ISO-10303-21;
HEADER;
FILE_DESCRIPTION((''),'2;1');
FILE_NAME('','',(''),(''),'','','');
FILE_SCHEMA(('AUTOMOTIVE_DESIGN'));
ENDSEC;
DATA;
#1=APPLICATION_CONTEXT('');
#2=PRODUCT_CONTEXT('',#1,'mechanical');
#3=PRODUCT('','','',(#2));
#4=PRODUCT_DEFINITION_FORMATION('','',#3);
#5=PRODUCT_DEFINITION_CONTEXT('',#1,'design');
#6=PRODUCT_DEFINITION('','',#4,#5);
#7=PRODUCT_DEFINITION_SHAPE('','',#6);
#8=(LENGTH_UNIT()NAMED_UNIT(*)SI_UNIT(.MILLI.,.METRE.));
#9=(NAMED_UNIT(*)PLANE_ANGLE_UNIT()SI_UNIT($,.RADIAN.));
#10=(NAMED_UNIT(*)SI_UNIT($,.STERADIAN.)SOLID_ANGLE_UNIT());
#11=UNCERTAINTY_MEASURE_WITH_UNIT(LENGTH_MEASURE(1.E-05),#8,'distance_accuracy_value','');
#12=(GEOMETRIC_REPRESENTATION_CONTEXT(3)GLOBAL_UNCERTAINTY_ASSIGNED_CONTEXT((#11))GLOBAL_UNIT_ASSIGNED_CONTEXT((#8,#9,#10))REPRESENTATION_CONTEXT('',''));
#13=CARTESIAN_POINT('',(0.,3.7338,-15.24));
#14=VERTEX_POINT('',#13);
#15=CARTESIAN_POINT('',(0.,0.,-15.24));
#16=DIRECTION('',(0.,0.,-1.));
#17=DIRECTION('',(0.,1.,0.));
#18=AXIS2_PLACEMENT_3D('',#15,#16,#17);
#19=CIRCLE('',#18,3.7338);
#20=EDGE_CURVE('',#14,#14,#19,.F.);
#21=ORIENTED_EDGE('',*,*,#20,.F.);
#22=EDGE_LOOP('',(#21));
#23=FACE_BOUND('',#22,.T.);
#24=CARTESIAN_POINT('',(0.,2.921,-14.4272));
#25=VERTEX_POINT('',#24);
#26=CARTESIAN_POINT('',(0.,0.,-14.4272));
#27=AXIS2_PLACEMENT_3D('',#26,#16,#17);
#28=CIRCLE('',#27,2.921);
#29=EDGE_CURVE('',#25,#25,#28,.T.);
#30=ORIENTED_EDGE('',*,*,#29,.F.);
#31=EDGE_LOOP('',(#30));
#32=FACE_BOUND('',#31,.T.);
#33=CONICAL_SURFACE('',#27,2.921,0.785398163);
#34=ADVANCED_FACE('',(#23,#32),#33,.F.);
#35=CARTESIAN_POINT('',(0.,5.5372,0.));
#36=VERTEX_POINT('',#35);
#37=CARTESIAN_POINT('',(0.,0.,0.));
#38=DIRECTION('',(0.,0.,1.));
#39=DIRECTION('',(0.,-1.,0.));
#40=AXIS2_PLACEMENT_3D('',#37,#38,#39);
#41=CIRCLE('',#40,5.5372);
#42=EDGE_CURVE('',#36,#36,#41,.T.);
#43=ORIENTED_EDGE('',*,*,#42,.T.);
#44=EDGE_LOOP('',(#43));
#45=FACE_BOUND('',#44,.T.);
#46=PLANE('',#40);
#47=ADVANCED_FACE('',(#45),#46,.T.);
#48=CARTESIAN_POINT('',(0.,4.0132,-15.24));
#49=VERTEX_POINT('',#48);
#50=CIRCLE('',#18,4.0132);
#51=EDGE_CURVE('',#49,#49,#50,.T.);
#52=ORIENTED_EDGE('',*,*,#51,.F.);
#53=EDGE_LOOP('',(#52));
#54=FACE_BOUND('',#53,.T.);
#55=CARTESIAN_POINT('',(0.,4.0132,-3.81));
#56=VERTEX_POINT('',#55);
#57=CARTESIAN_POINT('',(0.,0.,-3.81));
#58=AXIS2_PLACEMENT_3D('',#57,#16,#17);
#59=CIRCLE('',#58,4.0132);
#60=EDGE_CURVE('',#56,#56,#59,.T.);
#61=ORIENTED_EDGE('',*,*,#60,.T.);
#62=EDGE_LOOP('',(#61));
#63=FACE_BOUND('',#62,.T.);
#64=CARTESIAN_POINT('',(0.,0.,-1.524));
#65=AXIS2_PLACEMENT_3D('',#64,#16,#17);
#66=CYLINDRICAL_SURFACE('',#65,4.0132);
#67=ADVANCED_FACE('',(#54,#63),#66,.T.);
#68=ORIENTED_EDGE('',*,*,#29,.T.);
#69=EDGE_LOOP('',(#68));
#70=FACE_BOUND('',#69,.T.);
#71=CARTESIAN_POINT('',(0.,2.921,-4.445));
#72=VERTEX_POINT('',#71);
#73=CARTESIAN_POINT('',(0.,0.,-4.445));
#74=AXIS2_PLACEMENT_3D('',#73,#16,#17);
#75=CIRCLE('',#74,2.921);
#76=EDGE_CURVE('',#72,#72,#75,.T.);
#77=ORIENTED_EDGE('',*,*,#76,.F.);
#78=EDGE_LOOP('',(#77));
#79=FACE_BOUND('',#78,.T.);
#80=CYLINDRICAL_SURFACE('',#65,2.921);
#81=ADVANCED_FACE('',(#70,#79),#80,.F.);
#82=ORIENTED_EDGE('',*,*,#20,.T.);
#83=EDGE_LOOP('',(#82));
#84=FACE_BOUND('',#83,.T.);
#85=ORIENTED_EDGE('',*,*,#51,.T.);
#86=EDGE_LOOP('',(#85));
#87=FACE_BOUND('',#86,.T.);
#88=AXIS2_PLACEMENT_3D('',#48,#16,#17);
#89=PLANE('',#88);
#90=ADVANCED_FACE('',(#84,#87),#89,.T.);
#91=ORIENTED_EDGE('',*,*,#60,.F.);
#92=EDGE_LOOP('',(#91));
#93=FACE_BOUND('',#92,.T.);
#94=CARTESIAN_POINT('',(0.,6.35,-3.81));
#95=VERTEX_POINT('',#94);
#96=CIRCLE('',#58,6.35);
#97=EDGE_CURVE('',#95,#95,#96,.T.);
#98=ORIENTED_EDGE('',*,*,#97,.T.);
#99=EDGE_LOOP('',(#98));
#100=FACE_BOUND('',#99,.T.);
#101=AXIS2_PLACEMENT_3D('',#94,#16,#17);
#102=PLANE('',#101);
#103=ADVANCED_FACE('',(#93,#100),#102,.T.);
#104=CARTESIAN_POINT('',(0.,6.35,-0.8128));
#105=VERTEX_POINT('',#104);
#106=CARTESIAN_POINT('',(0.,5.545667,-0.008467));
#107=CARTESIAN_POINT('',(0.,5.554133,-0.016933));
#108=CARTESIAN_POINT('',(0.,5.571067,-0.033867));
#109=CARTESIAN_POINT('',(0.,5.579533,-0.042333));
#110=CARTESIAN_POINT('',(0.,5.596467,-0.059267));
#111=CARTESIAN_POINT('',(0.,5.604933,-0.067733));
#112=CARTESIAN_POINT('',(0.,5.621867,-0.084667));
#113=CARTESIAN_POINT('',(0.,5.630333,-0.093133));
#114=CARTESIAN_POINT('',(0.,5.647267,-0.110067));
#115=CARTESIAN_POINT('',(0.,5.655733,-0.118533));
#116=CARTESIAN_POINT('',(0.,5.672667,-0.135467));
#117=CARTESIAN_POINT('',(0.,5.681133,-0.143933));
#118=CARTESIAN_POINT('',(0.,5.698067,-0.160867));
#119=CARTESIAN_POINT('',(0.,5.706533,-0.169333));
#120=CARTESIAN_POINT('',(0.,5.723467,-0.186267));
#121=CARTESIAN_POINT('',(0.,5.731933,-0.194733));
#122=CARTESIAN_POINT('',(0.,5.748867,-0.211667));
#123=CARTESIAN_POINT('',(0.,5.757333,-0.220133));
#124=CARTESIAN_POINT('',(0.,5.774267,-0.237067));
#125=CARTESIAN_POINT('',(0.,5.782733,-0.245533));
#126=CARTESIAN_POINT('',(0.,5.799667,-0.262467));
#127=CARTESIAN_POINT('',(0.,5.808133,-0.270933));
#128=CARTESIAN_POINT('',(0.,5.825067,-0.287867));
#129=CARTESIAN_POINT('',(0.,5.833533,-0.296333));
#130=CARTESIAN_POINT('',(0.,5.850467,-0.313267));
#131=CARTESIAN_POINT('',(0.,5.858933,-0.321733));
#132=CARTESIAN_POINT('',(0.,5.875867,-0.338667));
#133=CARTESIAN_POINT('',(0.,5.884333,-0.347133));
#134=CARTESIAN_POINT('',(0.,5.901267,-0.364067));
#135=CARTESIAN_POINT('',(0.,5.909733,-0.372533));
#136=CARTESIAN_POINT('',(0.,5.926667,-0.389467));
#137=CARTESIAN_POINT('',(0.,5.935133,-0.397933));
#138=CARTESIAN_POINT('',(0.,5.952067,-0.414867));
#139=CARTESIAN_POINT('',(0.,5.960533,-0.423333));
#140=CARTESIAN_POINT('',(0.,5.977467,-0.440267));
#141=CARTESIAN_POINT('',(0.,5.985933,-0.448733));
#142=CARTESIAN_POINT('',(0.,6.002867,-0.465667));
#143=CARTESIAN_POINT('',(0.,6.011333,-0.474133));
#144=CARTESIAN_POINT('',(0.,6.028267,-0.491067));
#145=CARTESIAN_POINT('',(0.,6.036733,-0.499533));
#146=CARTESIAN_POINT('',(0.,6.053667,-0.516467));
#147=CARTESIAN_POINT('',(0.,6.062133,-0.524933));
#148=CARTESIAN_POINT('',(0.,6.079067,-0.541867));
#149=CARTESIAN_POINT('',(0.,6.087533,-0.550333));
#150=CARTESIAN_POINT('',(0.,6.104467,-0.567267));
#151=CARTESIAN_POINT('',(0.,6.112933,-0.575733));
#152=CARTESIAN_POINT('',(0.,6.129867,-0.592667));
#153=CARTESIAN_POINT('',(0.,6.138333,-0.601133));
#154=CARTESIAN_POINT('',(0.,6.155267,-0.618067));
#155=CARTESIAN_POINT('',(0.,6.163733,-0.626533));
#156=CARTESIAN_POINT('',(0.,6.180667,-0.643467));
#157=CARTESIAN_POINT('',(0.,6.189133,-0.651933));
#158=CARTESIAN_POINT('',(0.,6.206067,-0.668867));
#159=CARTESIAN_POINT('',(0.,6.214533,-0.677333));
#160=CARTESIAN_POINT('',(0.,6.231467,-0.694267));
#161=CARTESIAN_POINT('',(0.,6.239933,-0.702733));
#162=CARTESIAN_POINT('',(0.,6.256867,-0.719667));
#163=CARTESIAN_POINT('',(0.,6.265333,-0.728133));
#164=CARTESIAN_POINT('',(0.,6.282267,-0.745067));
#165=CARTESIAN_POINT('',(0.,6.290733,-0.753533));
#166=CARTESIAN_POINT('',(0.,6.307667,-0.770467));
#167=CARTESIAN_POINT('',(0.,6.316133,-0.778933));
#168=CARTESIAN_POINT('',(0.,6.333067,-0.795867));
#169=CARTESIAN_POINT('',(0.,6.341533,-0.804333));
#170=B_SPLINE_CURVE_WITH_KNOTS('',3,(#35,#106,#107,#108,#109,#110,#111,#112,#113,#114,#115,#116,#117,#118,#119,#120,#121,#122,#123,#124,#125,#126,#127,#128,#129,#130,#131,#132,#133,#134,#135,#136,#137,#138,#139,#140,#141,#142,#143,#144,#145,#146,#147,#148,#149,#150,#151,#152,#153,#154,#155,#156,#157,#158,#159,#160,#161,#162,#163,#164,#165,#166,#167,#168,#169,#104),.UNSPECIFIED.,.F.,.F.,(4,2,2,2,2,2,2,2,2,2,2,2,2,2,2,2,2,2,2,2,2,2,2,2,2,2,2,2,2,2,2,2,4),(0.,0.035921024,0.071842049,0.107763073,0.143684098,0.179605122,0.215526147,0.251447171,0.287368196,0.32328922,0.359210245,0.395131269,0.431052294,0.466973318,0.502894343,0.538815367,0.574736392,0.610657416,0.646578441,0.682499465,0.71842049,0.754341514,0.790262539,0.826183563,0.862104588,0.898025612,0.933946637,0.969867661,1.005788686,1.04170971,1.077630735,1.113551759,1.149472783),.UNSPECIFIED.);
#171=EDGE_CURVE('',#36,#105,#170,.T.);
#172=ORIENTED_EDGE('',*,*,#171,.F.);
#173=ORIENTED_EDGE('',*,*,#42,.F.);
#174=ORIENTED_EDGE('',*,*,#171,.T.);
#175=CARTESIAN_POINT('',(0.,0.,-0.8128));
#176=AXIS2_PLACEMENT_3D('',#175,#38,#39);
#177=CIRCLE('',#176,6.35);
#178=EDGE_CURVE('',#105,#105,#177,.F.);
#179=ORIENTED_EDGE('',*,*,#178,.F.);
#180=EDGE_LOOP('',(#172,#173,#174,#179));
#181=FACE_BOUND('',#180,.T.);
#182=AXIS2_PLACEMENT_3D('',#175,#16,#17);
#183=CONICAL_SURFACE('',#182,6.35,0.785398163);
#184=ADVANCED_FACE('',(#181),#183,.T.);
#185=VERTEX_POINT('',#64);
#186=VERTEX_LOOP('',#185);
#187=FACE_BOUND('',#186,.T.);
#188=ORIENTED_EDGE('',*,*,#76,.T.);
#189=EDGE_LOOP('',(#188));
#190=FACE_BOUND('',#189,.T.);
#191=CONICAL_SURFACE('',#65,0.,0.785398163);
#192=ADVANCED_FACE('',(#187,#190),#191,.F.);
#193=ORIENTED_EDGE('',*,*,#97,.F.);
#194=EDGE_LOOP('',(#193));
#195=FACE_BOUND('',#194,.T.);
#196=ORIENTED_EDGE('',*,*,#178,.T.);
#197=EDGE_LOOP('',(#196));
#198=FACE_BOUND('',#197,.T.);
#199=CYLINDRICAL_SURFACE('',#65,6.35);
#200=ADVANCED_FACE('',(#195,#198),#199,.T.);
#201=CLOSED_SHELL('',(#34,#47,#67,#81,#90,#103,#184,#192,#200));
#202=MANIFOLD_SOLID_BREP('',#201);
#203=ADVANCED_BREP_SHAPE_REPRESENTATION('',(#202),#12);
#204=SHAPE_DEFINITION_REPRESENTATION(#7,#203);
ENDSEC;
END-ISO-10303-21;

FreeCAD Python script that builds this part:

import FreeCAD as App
import Part
import Sketcher

V = App.Vector
Q = App.Units.Quantity


def edges_at(feature, points):
    """Names of the edges that pass closest to the given points."""
    edges = feature.Shape.Edges
    near = lambda p: min(range(len(edges)), key=lambda i: edges[i].distToShape(Part.Vertex(*p))[0])
    return sorted({f"Edge{near(p) + 1}" for p in points})


def add_polygon(sketch, points):
    """Adds a closed chain of lines whose ends are joined by coincident constraints."""
    first, n = sketch.GeometryCount, len(points)
    for a, b in zip(points, points[1:] + points[:1]):
        sketch.addGeometry(Part.LineSegment(App.Vector(*a, 0), App.Vector(*b, 0)), False)
    for i in range(n):
        sketch.addConstraint(Sketcher.Constraint("Coincident", first + i, 2, first + (i + 1) % n, 1))

doc = App.newDocument("Part")
body = doc.addObject("PartDesign::Body", "Body")

sketch1 = body.newObject("Sketcher::SketchObject", "Sketch")
sketch1.AttachmentSupport = (doc.getObject("YZ_Plane"), [""])
sketch1.MapMode = "FlatFace"
add_polygon(sketch1, [(6.3, 0), (0, 0), (0, -1.5), (2.9, -4.4), (2.9, -15.2), (4, -15.2), (4, -3.8), (6.3, -3.8)])
sketch1.addConstraint([
    Sketcher.Constraint("Horizontal", 0),
    Sketcher.Constraint("Vertical", 1),
    Sketcher.Constraint("Vertical", 3),
    Sketcher.Constraint("Horizontal", 4),
    Sketcher.Constraint("Vertical", 5),
    Sketcher.Constraint("Horizontal", 6),
    Sketcher.Constraint("Vertical", 7),
    Sketcher.Constraint("Coincident", 0, 2, -1, 1),
    Sketcher.Constraint("Angle", 2, Q("-45 deg")),
    Sketcher.Constraint("DistanceX", 0, 2, 0, 1, Q("0.25 in")),
    Sketcher.Constraint("DistanceY", 1, 2, 1, 1, Q("0.06 in")),
    Sketcher.Constraint("DistanceY", 5, 1, 5, 2, Q("0.45 in")),
    Sketcher.Constraint("DistanceY", 7, 1, 7, 2, Q("0.15 in")),
    Sketcher.Constraint("DistanceX", 4, 1, 4, 2, Q("0.043 in")),
    Sketcher.Constraint("DistanceX", 6, 1, 6, 2, Q("0.092 in")),
])
revolution = body.newObject("PartDesign::Revolution", "Revolution")
revolution.Profile = sketch1
revolution.ReferenceAxis = (sketch1, ["V_Axis"])
revolution.Angle = 360
doc.recompute()

chamfer = body.newObject("PartDesign::Chamfer", "Chamfer")
chamfer.Base = (revolution, edges_at(revolution, [(0, -2.921, -15.24), (0, -6.35, 0)]))
chamfer.Size = Q("0.032 in")

doc.recompute()
